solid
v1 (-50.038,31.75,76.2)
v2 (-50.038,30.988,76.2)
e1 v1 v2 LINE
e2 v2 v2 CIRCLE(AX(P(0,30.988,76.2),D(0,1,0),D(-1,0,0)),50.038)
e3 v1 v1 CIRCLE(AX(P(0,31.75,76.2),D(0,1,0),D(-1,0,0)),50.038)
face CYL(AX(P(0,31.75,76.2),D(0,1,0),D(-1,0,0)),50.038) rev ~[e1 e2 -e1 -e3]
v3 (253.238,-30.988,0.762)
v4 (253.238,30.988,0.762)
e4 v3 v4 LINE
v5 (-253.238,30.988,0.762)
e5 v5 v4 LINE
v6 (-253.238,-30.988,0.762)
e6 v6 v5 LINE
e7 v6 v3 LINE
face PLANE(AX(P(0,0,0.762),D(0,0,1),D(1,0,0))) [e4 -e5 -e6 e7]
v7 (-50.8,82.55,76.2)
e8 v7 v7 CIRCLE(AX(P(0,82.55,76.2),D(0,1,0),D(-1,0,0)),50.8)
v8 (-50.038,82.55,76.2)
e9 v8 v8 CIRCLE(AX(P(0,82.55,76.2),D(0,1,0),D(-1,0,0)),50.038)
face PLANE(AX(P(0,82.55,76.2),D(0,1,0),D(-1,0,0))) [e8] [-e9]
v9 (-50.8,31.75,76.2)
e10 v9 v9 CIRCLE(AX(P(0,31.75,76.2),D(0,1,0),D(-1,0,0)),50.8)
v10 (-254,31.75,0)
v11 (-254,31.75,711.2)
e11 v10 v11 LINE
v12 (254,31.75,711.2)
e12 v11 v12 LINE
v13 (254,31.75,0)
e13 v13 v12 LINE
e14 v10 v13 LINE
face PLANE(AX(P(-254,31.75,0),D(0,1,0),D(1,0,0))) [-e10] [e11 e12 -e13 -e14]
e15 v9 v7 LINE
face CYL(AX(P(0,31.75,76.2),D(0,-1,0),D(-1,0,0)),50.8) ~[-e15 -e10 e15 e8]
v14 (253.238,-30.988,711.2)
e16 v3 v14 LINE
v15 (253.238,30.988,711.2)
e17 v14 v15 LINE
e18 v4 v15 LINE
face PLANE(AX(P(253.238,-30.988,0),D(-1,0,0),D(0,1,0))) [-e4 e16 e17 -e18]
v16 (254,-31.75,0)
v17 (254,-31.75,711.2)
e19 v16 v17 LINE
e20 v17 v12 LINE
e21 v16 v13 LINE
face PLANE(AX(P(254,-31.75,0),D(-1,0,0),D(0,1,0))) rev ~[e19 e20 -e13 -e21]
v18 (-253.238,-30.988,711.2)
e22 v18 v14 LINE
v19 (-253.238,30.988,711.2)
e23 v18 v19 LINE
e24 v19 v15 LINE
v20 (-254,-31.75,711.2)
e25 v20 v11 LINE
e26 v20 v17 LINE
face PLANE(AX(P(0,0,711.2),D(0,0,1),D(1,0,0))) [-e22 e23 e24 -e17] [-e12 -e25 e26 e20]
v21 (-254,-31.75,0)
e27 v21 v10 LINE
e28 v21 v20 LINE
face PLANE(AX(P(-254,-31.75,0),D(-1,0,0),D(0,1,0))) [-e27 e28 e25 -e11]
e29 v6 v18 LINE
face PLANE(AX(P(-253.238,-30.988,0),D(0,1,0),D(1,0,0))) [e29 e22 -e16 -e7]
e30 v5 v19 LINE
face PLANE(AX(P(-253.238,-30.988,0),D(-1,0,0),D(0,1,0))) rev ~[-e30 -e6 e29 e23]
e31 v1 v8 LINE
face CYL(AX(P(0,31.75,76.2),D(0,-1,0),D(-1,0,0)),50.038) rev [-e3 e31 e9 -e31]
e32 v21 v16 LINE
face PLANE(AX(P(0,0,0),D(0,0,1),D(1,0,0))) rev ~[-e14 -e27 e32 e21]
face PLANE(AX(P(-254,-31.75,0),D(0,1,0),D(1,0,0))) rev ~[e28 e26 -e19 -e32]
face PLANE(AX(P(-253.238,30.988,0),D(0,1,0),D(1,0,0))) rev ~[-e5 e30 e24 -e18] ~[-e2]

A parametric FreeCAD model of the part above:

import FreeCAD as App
import Part
import Sketcher
from FreeCAD import Vector
Q = App.Units.Quantity


def add_polygon(sketch, points):
    """Adds a closed chain of lines whose ends are joined by coincident constraints."""
    first, n = sketch.GeometryCount, len(points)
    for a, b in zip(points, points[1:] + points[:1]):
        sketch.addGeometry(Part.LineSegment(App.Vector(*a, 0), App.Vector(*b, 0)), False)
    for i in range(n):
        sketch.addConstraint(Sketcher.Constraint("Coincident", first + i, 2, first + (i + 1) % n, 1))

doc = App.newDocument("Part")
params = doc.addObject("Spreadsheet::Sheet", "Params")
for row, (alias, value) in enumerate([
    ("sketch1_width", "20 in"),
    ("sketch1_height", "2.5 in"),
    ("sketch1_width2", "19.94 in"),
    ("sketch1_height2", "2.44 in"),
    ("pad1_length", "28 in"),
    ("sketch2_width", "19.94 in"),
    ("sketch2_height", "2.44 in"),
    ("pad2_length", "0.03 in"),
    ("sketch3_diameter", "4 in"),
    ("sketch3_diameter2", "3.94 in"),
    ("pad3_length", "2 in"),
    ("sketch4_diameter", "3.94 in"),
    ("pocket1_length", "1 in"),
], start=1):
    params.set(f"A{row}", alias)
    params.set(f"B{row}", "=" + value)
    params.setAlias(f"B{row}", alias)

body = doc.addObject("PartDesign::Body", "Body")

# Sketch on XY plane
sketch1 = doc.addObject("Sketcher::SketchObject", "Sketch")
body.addObject(sketch1)
sketch1.AttachmentSupport = (doc.XY_Plane, [""])
sketch1.MapMode = "FlatFace"
add_polygon(sketch1, [(-254, 32), (-254, -32), (254, -32), (254, 32)])  # lines 0-3
add_polygon(sketch1, [(253, -31), (-253, -31), (-253, 31), (253, 31)])  # lines 4-7
sketch1.addConstraint([
    Sketcher.Constraint("Vertical", 0),
    Sketcher.Constraint("Horizontal", 1),
    Sketcher.Constraint("Vertical", 2),
    Sketcher.Constraint("Horizontal", 3),
    Sketcher.Constraint("Horizontal", 4),
    Sketcher.Constraint("Vertical", 5),
    Sketcher.Constraint("Horizontal", 6),
    Sketcher.Constraint("Vertical", 7),
    Sketcher.Constraint("Symmetric", 0, 2, 2, 2, -1, 1),
    Sketcher.Constraint("Symmetric", 4, 2, 6, 2, -1, 1),
    Sketcher.Constraint("DistanceX", 1, 1, 1, 2, Q("20 in")),
    Sketcher.Constraint("DistanceY", 0, 2, 0, 1, Q("2.5 in")),
    Sketcher.Constraint("DistanceX", 4, 2, 4, 1, Q("19.94 in")),
    Sketcher.Constraint("DistanceY", 5, 1, 5, 2, Q("2.44 in")),
])
sketch1.setExpression("Constraints[18]", "Params.sketch1_width")
sketch1.setExpression("Constraints[19]", "Params.sketch1_height")
sketch1.setExpression("Constraints[20]", "Params.sketch1_width2")
sketch1.setExpression("Constraints[21]", "Params.sketch1_height2")
pad1 = doc.addObject("PartDesign::Pad", "Pad")
body.addObject(pad1)
pad1.Profile = sketch1
pad1.setExpression("Length", "Params.pad1_length")

# Sketch on XY plane
sketch2 = doc.addObject("Sketcher::SketchObject", "Sketch001")
body.addObject(sketch2)
sketch2.AttachmentSupport = (doc.XY_Plane, [""])
sketch2.MapMode = "FlatFace"
add_polygon(sketch2, [(-253, 31), (-253, -31), (253, -31), (253, 31)])  # lines 0-3
sketch2.addConstraint([
    Sketcher.Constraint("Vertical", 0),
    Sketcher.Constraint("Horizontal", 1),
    Sketcher.Constraint("Vertical", 2),
    Sketcher.Constraint("Horizontal", 3),
    Sketcher.Constraint("Symmetric", 0, 2, 2, 2, -1, 1),
    Sketcher.Constraint("DistanceX", 1, 1, 1, 2, Q("19.94 in")),
    Sketcher.Constraint("DistanceY", 0, 2, 0, 1, Q("2.44 in")),
])
sketch2.setExpression("Constraints[9]", "Params.sketch2_width")
sketch2.setExpression("Constraints[10]", "Params.sketch2_height")
pad2 = doc.addObject("PartDesign::Pad", "Pad001")
body.addObject(pad2)
pad2.Profile = sketch2
pad2.setExpression("Length", "Params.pad2_length")

# Sketch on XZ plane
sketch3 = doc.addObject("Sketcher::SketchObject", "Sketch002")
body.addObject(sketch3)
sketch3.AttachmentSupport = (doc.XZ_Plane, [""])
sketch3.MapMode = "FlatFace"
sketch3.AttachmentOffset = App.Placement(Vector(0, 0, -1.25 * 25.4), App.Rotation())
sketch3.addGeometry([
    Part.Circle(Vector(0, 76, 0), Vector(0, 0, 1), 51),
    Part.Circle(Vector(0, 76, 0), Vector(0, 0, 1), 50),
], False)
sketch3.addConstraint([
    Sketcher.Constraint("Coincident", 1, 3, 0, 3),
    Sketcher.Constraint("PointOnObject", 0, 3, -2),
    Sketcher.Constraint("Diameter", 0, Q("4 in")),
    Sketcher.Constraint("Diameter", 1, Q("3.94 in")),
    Sketcher.Constraint("DistanceY", -1, 1, 0, 3, Q("3 in")),
])
sketch3.setExpression("Constraints[2]", "Params.sketch3_diameter")
sketch3.setExpression("Constraints[3]", "Params.sketch3_diameter2")
pad3 = doc.addObject("PartDesign::Pad", "Pad002")
body.addObject(pad3)
pad3.Profile = sketch3
pad3.setExpression("Length", "Params.pad3_length")
pad3.Reversed = True

# Sketch on XZ plane
sketch4 = doc.addObject("Sketcher::SketchObject", "Sketch003")
body.addObject(sketch4)
sketch4.AttachmentSupport = (doc.XZ_Plane, [""])
sketch4.MapMode = "FlatFace"
sketch4.AttachmentOffset = App.Placement(Vector(0, 0, -1.25 * 25.4), App.Rotation())
sketch4.addGeometry(Part.Circle(Vector(0, 76, 0), Vector(0, 0, 1), 50), False)
sketch4.addConstraint([
    Sketcher.Constraint("PointOnObject", 0, 3, -2),
    Sketcher.Constraint("Diameter", 0, Q("3.94 in")),
    Sketcher.Constraint("DistanceY", -1, 1, 0, 3, Q("3 in")),
])
sketch4.setExpression("Constraints[1]", "Params.sketch4_diameter")
pocket1 = doc.addObject("PartDesign::Pocket", "Pocket")
body.addObject(pocket1)
pocket1.Profile = sketch4
pocket1.setExpression("Length", "Params.pocket1_length")
pocket1.Reversed = True

doc.recompute()
